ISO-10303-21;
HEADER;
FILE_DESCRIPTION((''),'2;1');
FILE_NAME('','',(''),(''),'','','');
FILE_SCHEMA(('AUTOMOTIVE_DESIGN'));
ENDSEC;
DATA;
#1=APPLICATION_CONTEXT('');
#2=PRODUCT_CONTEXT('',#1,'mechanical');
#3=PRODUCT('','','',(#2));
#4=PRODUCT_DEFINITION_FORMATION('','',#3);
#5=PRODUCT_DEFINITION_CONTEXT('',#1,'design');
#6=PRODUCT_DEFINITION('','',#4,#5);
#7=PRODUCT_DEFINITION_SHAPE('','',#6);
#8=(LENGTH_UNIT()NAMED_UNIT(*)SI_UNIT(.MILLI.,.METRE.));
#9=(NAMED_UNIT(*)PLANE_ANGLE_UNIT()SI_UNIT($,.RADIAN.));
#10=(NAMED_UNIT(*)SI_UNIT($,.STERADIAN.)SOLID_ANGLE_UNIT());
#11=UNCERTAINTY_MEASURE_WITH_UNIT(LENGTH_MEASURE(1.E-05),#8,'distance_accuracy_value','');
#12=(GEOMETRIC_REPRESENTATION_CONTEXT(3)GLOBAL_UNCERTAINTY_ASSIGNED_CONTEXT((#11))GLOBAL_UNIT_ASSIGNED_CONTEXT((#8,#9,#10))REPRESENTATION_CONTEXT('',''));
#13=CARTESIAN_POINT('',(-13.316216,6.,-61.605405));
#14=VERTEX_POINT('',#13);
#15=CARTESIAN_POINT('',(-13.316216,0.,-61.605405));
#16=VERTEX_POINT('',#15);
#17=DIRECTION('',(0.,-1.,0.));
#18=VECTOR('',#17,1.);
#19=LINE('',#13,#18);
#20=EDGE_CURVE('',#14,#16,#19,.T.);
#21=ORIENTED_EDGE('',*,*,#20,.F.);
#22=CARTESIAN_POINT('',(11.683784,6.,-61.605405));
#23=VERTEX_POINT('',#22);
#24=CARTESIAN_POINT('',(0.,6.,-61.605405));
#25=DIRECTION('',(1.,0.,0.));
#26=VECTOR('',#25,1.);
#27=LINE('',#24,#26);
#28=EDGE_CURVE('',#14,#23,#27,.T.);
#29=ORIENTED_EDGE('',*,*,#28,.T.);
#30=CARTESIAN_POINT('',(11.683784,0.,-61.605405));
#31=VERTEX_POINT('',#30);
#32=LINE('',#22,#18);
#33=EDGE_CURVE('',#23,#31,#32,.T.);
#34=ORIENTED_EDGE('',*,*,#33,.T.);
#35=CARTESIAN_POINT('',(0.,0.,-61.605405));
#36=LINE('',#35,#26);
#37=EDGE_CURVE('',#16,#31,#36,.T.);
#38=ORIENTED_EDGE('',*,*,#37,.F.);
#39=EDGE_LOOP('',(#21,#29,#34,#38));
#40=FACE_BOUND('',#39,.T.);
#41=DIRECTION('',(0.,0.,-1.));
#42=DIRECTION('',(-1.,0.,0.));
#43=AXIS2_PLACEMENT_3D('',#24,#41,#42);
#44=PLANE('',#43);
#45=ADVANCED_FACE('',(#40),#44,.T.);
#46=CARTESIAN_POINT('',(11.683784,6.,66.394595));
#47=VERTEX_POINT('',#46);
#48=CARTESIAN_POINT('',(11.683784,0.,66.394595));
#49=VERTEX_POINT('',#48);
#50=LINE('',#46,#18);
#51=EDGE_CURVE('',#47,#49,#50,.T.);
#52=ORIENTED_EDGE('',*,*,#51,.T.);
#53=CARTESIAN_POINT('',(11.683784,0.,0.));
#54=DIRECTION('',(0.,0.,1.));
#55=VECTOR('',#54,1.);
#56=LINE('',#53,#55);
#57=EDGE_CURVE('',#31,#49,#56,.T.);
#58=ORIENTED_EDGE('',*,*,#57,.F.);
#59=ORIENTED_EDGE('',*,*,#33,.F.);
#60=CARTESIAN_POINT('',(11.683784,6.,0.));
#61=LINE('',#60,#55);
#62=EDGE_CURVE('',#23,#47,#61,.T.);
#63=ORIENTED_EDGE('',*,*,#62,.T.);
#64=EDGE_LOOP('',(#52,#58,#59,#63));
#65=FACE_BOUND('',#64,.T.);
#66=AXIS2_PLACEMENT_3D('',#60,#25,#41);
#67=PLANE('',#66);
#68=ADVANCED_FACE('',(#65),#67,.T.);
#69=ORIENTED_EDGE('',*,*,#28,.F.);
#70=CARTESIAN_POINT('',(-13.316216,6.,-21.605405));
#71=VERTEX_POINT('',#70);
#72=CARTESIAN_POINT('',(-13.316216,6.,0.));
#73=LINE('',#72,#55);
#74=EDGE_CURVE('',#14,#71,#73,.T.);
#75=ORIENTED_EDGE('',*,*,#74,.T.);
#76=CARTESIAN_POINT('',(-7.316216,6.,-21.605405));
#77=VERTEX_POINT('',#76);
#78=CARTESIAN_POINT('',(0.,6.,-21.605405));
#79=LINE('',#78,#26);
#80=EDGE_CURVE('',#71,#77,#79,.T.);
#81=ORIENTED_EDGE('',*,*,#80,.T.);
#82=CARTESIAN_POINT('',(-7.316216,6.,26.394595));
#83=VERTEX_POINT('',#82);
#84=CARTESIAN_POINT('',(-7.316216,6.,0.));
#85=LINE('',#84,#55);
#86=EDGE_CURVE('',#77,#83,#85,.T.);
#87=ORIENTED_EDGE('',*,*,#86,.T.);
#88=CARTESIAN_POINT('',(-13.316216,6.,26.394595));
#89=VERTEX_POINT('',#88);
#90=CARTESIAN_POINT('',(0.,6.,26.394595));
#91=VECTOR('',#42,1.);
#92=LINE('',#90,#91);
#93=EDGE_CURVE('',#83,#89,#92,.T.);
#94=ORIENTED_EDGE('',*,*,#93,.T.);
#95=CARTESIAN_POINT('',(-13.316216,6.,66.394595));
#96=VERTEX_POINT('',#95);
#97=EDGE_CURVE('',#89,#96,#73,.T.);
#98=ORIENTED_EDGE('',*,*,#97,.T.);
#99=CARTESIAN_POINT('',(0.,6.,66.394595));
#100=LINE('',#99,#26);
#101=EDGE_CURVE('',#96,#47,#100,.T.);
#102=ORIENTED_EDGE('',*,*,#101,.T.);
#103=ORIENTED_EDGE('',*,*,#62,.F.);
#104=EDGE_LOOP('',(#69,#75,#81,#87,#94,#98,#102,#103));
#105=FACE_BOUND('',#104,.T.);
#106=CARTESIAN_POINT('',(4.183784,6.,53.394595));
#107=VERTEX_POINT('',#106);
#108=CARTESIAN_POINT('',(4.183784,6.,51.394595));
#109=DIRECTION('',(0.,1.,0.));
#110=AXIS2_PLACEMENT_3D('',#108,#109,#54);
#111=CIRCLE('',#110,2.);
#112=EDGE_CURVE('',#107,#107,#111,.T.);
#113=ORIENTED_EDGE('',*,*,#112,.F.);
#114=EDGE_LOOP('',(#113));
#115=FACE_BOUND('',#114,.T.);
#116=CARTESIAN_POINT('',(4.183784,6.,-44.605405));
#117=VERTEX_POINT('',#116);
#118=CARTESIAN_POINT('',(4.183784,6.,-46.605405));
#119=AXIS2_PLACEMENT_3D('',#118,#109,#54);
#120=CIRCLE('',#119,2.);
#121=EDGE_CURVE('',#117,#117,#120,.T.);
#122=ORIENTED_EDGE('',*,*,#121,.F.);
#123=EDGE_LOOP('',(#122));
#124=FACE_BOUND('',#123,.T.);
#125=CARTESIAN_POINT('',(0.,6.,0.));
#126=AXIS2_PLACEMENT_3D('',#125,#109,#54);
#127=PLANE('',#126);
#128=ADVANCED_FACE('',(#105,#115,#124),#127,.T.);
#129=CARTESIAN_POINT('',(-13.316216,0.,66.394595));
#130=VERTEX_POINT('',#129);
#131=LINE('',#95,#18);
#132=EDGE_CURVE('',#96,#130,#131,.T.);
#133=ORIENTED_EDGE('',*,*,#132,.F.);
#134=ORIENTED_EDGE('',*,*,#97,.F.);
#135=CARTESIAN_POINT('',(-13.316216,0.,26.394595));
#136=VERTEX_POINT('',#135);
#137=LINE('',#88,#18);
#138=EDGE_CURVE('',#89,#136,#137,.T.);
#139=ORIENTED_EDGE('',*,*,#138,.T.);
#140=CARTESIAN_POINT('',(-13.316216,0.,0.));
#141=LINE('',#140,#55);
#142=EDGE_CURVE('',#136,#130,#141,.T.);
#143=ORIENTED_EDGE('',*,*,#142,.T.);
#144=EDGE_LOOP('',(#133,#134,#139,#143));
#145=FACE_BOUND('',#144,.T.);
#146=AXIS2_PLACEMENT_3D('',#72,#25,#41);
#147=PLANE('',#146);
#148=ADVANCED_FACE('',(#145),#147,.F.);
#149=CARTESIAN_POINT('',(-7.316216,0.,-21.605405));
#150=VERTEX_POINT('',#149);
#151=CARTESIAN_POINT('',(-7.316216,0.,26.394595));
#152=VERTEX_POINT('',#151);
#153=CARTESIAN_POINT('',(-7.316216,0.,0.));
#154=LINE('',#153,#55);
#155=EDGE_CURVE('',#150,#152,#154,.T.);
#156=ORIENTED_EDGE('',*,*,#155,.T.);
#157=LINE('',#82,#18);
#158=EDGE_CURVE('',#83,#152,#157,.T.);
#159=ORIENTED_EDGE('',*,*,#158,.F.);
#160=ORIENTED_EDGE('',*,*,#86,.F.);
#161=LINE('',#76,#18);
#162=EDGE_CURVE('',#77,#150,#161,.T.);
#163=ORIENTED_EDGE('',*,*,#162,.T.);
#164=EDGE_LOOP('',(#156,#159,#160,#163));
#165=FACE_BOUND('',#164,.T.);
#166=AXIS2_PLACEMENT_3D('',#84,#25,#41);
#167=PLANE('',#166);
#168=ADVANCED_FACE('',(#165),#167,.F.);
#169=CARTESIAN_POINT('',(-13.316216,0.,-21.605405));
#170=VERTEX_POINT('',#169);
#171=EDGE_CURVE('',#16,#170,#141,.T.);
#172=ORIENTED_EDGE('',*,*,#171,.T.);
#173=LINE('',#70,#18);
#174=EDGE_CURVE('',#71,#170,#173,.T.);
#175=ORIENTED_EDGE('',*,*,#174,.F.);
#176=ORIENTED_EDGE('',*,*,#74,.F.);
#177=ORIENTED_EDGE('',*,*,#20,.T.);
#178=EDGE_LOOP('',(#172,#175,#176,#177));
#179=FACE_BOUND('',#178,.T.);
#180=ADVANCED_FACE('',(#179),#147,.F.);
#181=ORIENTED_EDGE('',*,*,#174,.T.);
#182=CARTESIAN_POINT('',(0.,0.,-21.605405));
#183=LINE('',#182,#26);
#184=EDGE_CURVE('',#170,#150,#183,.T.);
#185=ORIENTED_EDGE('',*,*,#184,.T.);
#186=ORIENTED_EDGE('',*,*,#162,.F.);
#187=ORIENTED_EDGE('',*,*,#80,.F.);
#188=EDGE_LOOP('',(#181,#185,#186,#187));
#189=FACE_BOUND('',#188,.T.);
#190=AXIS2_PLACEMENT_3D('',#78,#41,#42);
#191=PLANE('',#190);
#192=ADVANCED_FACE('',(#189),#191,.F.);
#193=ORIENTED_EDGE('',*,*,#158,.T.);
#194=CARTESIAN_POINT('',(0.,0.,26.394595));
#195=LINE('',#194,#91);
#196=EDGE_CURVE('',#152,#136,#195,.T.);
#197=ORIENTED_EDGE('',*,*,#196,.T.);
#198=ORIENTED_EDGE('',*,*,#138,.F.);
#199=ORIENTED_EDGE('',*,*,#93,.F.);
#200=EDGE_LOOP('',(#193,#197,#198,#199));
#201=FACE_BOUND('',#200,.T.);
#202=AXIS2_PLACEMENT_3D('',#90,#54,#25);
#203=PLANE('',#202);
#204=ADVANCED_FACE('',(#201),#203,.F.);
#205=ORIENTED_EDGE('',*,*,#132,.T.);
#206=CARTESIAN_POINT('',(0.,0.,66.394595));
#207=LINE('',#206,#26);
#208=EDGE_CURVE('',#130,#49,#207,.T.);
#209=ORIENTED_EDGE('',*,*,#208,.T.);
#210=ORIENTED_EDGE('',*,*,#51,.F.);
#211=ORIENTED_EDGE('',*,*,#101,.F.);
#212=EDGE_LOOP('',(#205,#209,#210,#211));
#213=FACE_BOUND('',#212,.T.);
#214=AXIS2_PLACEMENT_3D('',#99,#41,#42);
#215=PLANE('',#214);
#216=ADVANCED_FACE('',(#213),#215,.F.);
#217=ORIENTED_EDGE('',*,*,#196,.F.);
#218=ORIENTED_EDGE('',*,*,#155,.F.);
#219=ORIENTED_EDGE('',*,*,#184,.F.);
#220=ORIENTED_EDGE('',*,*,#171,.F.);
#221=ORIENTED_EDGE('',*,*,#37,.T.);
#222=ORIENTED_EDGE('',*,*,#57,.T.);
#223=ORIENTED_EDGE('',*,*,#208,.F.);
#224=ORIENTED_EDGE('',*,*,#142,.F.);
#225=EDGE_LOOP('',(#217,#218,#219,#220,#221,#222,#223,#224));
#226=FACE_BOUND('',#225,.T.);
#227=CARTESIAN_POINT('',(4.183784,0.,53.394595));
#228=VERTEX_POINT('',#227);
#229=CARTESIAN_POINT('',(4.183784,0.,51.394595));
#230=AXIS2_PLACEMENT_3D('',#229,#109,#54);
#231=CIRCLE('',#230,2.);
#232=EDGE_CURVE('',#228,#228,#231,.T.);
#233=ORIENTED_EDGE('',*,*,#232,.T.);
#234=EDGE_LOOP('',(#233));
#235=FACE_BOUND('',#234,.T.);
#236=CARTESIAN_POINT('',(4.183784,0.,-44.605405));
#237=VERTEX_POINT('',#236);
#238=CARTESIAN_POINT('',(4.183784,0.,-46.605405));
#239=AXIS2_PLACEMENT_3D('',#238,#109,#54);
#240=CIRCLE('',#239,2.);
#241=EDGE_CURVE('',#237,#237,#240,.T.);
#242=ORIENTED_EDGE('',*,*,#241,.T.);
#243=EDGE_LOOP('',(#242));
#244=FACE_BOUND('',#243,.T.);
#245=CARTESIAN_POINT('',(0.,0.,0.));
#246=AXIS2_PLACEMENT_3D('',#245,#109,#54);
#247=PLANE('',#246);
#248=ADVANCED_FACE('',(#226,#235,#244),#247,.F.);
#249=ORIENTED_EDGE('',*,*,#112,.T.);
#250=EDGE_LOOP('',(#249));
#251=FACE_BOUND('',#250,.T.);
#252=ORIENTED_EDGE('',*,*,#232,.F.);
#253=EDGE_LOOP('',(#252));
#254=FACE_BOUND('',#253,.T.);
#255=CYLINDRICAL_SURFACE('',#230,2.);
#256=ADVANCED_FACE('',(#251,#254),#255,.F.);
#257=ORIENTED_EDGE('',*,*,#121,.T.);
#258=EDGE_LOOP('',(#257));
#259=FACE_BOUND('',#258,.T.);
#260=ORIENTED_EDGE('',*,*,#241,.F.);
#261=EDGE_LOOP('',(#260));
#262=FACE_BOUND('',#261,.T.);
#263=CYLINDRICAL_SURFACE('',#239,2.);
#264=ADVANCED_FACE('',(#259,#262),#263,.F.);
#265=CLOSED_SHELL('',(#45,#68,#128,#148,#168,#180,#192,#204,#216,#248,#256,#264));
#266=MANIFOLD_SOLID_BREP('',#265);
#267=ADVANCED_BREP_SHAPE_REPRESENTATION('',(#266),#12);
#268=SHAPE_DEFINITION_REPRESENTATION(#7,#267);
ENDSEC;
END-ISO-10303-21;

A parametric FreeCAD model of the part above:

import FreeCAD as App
import Part
import Sketcher
from FreeCAD import Vector
Q = App.Units.Quantity

doc = App.newDocument("Part")
body = doc.addObject("PartDesign::Body", "Body")

sketch1 = body.newObject("Sketcher::SketchObject", "Sketch")
sketch1.AttachmentSupport = (doc.getObject("XZ_Plane"), [""])
sketch1.MapMode = "FlatFace"
sketch1.addGeometry(Part.LineSegment(Vector(-13, -62, 0), Vector(-13, -22, 0)), False)
sketch1.addGeometry(Part.LineSegment(Vector(-13, -22, 0), Vector(-7, -22, 0)), False)
sketch1.addGeometry(Part.LineSegment(Vector(-7, -22, 0), Vector(-7, 26, 0)), False)
sketch1.addGeometry(Part.LineSegment(Vector(-7, 26, 0), Vector(-13, 26, 0)), False)
sketch1.addGeometry(Part.LineSegment(Vector(-13, 26, 0), Vector(-13, 66, 0)), False)
sketch1.addGeometry(Part.LineSegment(Vector(-13, 66, 0), Vector(12, 66, 0)), False)
sketch1.addGeometry(Part.LineSegment(Vector(12, 66, 0), Vector(12, -62, 0)), False)
sketch1.addGeometry(Part.LineSegment(Vector(12, -62, 0), Vector(-13, -62, 0)), False)
sketch1.addConstraint(Sketcher.Constraint("Coincident", 0, 2, 1, 1))
sketch1.addConstraint(Sketcher.Constraint("Coincident", 1, 2, 2, 1))
sketch1.addConstraint(Sketcher.Constraint("Coincident", 2, 2, 3, 1))
sketch1.addConstraint(Sketcher.Constraint("Coincident", 3, 2, 4, 1))
sketch1.addConstraint(Sketcher.Constraint("Coincident", 4, 2, 5, 1))
sketch1.addConstraint(Sketcher.Constraint("Coincident", 5, 2, 6, 1))
sketch1.addConstraint(Sketcher.Constraint("Coincident", 6, 2, 7, 1))
sketch1.addConstraint(Sketcher.Constraint("Coincident", 7, 2, 0, 1))
sketch1.addConstraint(Sketcher.Constraint("Vertical", 0))
sketch1.addConstraint(Sketcher.Constraint("Horizontal", 1))
sketch1.addConstraint(Sketcher.Constraint("Vertical", 2))
sketch1.addConstraint(Sketcher.Constraint("Horizontal", 3))
sketch1.addConstraint(Sketcher.Constraint("Vertical", 4))
sketch1.addConstraint(Sketcher.Constraint("Horizontal", 5))
sketch1.addConstraint(Sketcher.Constraint("Vertical", 6))
sketch1.addConstraint(Sketcher.Constraint("Horizontal", 7))
sketch1.addConstraint(Sketcher.Constraint("Vertical", 0, 2, 3, 2))
sketch1.addConstraint(Sketcher.Constraint("Equal", 0, 4))
sketch1.addConstraint(Sketcher.Constraint("DistanceX", 1, 1, 1, 2, Q("6 mm")))
sketch1.addConstraint(Sketcher.Constraint("DistanceX", 5, 1, 5, 2, Q("25 mm")))
sketch1.addConstraint(Sketcher.Constraint("DistanceY", 0, 1, 0, 2, Q("40 mm")))
sketch1.addConstraint(Sketcher.Constraint("DistanceY", 2, 1, 2, 2, Q("48 mm")))
sketch1.addConstraint(Sketcher.Constraint("DistanceX", 0, 2, -1, 1, Q("13.316216 mm")))
sketch1.addConstraint(Sketcher.Constraint("DistanceY", 0, 2, -1, 1, Q("21.605405 mm")))
pad1 = body.newObject("PartDesign::Pad", "Pad")
pad1.Profile = sketch1
pad1.Length = 6
pad1.Reversed = True

sketch2 = body.newObject("Sketcher::SketchObject", "Sketch001")
sketch2.AttachmentSupport = (doc.getObject("XZ_Plane"), [""])
sketch2.MapMode = "FlatFace"
sketch2.AttachmentOffset = App.Placement(Vector(0, 0, -6), App.Rotation())
sketch2.addGeometry(Part.Circle(Vector(4.2, 51.4, 0), Vector(0, 0, 1), 2), False)
sketch2.addGeometry(Part.Circle(Vector(4.2, -46.6, 0), Vector(0, 0, 1), 2), False)
sketch2.addConstraint(Sketcher.Constraint("Equal", 0, 1))
sketch2.addConstraint(Sketcher.Constraint("Vertical", 0, 3, 1, 3))
sketch2.addConstraint(Sketcher.Constraint("Diameter", 0, Q("4 mm")))
sketch2.addConstraint(Sketcher.Constraint("DistanceY", 1, 3, 0, 3, Q("98 mm")))
sketch2.addConstraint(Sketcher.Constraint("DistanceX", -1, 1, 0, 3, Q("4.183784 mm")))
sketch2.addConstraint(Sketcher.Constraint("DistanceY", -1, 1, 0, 3, Q("51.394595 mm")))
pocket1 = body.newObject("PartDesign::Pocket", "Pocket")
pocket1.Profile = sketch2
pocket1.Type = "ThroughAll"
pocket1.Reversed = True

doc.recompute()
